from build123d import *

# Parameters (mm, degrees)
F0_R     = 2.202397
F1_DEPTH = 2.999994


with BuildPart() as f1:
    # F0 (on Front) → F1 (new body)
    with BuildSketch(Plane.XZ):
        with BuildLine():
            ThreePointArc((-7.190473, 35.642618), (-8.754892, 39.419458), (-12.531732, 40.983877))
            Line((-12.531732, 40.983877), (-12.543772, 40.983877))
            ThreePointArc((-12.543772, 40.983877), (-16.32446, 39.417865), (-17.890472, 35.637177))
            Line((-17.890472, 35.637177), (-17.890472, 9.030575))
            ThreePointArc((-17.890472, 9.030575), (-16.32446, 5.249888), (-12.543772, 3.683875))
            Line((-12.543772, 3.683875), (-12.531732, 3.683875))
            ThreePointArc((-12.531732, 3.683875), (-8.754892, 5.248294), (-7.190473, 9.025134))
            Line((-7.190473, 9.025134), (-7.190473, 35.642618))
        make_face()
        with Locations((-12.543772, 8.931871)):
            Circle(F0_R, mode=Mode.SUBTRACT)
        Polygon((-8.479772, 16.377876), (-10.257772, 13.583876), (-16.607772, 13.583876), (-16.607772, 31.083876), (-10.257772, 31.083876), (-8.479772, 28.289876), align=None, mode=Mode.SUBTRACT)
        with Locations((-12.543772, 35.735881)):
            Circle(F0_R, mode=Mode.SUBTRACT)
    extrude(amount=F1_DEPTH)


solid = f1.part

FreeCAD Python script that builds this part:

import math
import FreeCAD as App
import Part
import Sketcher

V = App.Vector
Q = App.Units.Quantity


def add_polygon(sketch, points):
    """Adds a closed chain of lines whose ends are joined by coincident constraints."""
    first, n = sketch.GeometryCount, len(points)
    for a, b in zip(points, points[1:] + points[:1]):
        sketch.addGeometry(Part.LineSegment(App.Vector(*a, 0), App.Vector(*b, 0)), False)
    for i in range(n):
        sketch.addConstraint(Sketcher.Constraint("Coincident", first + i, 2, first + (i + 1) % n, 1))

doc = App.newDocument("Part")
body = doc.addObject("PartDesign::Body", "Body")

sketch1 = body.newObject("Sketcher::SketchObject", "Sketch")
sketch1.AttachmentSupport = (doc.getObject("XZ_Plane"), [""])
sketch1.MapMode = "FlatFace"
sketch1.addGeometry(Part.ArcOfCircle(Part.Circle(V(-12.532, 35.643, 0), V(0, 0, 1), 5.341), math.radians(0), math.radians(90)), False)
sketch1.addGeometry(Part.LineSegment(V(-12.532, 40.984, 0), V(-12.544, 40.984, 0)), False)
sketch1.addGeometry(Part.ArcOfCircle(Part.Circle(V(-12.544, 35.637, 0), V(0, 0, 1), 5.347), math.radians(90), math.radians(180)), False)
sketch1.addGeometry(Part.LineSegment(V(-17.89, 35.637, 0), V(-17.89, 9.031, 0)), False)
sketch1.addGeometry(Part.ArcOfCircle(Part.Circle(V(-12.544, 9.031, 0), V(0, 0, 1), 5.347), math.radians(-180), math.radians(-90)), False)
sketch1.addGeometry(Part.LineSegment(V(-12.544, 3.684, 0), V(-12.532, 3.684, 0)), False)
sketch1.addGeometry(Part.ArcOfCircle(Part.Circle(V(-12.532, 9.025, 0), V(0, 0, 1), 5.341), math.radians(-90), math.radians(0)), False)
sketch1.addGeometry(Part.LineSegment(V(-7.19, 9.025, 0), V(-7.19, 35.643, 0)), False)
sketch1.addGeometry(Part.Circle(V(-12.544, 8.932, 0), V(0, 0, 1), 2.202), False)
add_polygon(sketch1, [(-8.48, 28.29), (-8.48, 16.378), (-10.258, 13.584), (-16.608, 13.584), (-16.608, 31.084), (-10.258, 31.084)])
sketch1.addGeometry(Part.Circle(V(-12.544, 35.736, 0), V(0, 0, 1), 2.202), False)
sketch1.addConstraint([
    Sketcher.Constraint("Tangent", 0, 2, 1, 1),
    Sketcher.Constraint("Tangent", 1, 2, 2, 1),
    Sketcher.Constraint("Tangent", 2, 2, 3, 1),
    Sketcher.Constraint("Tangent", 3, 2, 4, 1),
    Sketcher.Constraint("Tangent", 4, 2, 5, 1),
    Sketcher.Constraint("Tangent", 5, 2, 6, 1),
    Sketcher.Constraint("Tangent", 6, 2, 7, 1),
    Sketcher.Constraint("Tangent", 7, 2, 0, 1),
    Sketcher.Constraint("Vertical", 3),
    Sketcher.Constraint("Vertical", 7),
    Sketcher.Constraint("Vertical", 9),
    Sketcher.Constraint("Horizontal", 11),
    Sketcher.Constraint("Vertical", 12),
    Sketcher.Constraint("Horizontal", 13),
    Sketcher.Constraint("Equal", 2, 4),
    Sketcher.Constraint("Equal", 0, 6),
    Sketcher.Constraint("Equal", 8, 15),
    Sketcher.Constraint("Vertical", 4, 3, 8, 3),
    Sketcher.Constraint("Vertical", 8, 3, 15, 3),
    Sketcher.Constraint("Vertical", 6, 3, 0, 2),
    Sketcher.Constraint("Vertical", 1, 2, 4, 2),
    Sketcher.Constraint("Vertical", 10, 2, 13, 2),
    Sketcher.Constraint("Equal", 10, 14),
    Sketcher.Constraint("DistanceX", 11, 2, 11, 1, Q("0.25 in")),
    Sketcher.Constraint("Radius", 2, Q("0.2105 in")),
    Sketcher.Constraint("DistanceX", 4, 3, 9, 2, Q("0.16 in")),
    Sketcher.Constraint("DistanceX", 10, 2, 9, 2, Q("0.07 in")),
    Sketcher.Constraint("DistanceY", 10, 2, 9, 2, Q("0.11 in")),
    Sketcher.Constraint("Radius", 0, Q("5.341261 mm")),
    Sketcher.Constraint("Diameter", 8, Q("4.404794 mm")),
    Sketcher.Constraint("DistanceY", 9, 2, 9, 1, Q("11.912 mm")),
    Sketcher.Constraint("DistanceX", 1, 2, 1, 1, Q("0.01204 mm")),
    Sketcher.Constraint("DistanceY", 4, 3, 2, 3, Q("26.606601 mm")),
    Sketcher.Constraint("DistanceY", 4, 3, 9, 2, Q("7.3473 mm")),
    Sketcher.Constraint("DistanceX", 4, 3, -1, 1, Q("12.543771 mm")),
    Sketcher.Constraint("DistanceY", -1, 1, 8, 3, Q("8.931871 mm")),
    Sketcher.Constraint("DistanceY", -1, 1, 15, 3, Q("35.735881 mm")),
    Sketcher.Constraint("DistanceY", -1, 1, 0, 3, Q("35.642616 mm")),
])
pad1 = body.newObject("PartDesign::Pad", "Pad")
pad1.Profile = sketch1
pad1.Length = 2.999994

doc.recompute()
